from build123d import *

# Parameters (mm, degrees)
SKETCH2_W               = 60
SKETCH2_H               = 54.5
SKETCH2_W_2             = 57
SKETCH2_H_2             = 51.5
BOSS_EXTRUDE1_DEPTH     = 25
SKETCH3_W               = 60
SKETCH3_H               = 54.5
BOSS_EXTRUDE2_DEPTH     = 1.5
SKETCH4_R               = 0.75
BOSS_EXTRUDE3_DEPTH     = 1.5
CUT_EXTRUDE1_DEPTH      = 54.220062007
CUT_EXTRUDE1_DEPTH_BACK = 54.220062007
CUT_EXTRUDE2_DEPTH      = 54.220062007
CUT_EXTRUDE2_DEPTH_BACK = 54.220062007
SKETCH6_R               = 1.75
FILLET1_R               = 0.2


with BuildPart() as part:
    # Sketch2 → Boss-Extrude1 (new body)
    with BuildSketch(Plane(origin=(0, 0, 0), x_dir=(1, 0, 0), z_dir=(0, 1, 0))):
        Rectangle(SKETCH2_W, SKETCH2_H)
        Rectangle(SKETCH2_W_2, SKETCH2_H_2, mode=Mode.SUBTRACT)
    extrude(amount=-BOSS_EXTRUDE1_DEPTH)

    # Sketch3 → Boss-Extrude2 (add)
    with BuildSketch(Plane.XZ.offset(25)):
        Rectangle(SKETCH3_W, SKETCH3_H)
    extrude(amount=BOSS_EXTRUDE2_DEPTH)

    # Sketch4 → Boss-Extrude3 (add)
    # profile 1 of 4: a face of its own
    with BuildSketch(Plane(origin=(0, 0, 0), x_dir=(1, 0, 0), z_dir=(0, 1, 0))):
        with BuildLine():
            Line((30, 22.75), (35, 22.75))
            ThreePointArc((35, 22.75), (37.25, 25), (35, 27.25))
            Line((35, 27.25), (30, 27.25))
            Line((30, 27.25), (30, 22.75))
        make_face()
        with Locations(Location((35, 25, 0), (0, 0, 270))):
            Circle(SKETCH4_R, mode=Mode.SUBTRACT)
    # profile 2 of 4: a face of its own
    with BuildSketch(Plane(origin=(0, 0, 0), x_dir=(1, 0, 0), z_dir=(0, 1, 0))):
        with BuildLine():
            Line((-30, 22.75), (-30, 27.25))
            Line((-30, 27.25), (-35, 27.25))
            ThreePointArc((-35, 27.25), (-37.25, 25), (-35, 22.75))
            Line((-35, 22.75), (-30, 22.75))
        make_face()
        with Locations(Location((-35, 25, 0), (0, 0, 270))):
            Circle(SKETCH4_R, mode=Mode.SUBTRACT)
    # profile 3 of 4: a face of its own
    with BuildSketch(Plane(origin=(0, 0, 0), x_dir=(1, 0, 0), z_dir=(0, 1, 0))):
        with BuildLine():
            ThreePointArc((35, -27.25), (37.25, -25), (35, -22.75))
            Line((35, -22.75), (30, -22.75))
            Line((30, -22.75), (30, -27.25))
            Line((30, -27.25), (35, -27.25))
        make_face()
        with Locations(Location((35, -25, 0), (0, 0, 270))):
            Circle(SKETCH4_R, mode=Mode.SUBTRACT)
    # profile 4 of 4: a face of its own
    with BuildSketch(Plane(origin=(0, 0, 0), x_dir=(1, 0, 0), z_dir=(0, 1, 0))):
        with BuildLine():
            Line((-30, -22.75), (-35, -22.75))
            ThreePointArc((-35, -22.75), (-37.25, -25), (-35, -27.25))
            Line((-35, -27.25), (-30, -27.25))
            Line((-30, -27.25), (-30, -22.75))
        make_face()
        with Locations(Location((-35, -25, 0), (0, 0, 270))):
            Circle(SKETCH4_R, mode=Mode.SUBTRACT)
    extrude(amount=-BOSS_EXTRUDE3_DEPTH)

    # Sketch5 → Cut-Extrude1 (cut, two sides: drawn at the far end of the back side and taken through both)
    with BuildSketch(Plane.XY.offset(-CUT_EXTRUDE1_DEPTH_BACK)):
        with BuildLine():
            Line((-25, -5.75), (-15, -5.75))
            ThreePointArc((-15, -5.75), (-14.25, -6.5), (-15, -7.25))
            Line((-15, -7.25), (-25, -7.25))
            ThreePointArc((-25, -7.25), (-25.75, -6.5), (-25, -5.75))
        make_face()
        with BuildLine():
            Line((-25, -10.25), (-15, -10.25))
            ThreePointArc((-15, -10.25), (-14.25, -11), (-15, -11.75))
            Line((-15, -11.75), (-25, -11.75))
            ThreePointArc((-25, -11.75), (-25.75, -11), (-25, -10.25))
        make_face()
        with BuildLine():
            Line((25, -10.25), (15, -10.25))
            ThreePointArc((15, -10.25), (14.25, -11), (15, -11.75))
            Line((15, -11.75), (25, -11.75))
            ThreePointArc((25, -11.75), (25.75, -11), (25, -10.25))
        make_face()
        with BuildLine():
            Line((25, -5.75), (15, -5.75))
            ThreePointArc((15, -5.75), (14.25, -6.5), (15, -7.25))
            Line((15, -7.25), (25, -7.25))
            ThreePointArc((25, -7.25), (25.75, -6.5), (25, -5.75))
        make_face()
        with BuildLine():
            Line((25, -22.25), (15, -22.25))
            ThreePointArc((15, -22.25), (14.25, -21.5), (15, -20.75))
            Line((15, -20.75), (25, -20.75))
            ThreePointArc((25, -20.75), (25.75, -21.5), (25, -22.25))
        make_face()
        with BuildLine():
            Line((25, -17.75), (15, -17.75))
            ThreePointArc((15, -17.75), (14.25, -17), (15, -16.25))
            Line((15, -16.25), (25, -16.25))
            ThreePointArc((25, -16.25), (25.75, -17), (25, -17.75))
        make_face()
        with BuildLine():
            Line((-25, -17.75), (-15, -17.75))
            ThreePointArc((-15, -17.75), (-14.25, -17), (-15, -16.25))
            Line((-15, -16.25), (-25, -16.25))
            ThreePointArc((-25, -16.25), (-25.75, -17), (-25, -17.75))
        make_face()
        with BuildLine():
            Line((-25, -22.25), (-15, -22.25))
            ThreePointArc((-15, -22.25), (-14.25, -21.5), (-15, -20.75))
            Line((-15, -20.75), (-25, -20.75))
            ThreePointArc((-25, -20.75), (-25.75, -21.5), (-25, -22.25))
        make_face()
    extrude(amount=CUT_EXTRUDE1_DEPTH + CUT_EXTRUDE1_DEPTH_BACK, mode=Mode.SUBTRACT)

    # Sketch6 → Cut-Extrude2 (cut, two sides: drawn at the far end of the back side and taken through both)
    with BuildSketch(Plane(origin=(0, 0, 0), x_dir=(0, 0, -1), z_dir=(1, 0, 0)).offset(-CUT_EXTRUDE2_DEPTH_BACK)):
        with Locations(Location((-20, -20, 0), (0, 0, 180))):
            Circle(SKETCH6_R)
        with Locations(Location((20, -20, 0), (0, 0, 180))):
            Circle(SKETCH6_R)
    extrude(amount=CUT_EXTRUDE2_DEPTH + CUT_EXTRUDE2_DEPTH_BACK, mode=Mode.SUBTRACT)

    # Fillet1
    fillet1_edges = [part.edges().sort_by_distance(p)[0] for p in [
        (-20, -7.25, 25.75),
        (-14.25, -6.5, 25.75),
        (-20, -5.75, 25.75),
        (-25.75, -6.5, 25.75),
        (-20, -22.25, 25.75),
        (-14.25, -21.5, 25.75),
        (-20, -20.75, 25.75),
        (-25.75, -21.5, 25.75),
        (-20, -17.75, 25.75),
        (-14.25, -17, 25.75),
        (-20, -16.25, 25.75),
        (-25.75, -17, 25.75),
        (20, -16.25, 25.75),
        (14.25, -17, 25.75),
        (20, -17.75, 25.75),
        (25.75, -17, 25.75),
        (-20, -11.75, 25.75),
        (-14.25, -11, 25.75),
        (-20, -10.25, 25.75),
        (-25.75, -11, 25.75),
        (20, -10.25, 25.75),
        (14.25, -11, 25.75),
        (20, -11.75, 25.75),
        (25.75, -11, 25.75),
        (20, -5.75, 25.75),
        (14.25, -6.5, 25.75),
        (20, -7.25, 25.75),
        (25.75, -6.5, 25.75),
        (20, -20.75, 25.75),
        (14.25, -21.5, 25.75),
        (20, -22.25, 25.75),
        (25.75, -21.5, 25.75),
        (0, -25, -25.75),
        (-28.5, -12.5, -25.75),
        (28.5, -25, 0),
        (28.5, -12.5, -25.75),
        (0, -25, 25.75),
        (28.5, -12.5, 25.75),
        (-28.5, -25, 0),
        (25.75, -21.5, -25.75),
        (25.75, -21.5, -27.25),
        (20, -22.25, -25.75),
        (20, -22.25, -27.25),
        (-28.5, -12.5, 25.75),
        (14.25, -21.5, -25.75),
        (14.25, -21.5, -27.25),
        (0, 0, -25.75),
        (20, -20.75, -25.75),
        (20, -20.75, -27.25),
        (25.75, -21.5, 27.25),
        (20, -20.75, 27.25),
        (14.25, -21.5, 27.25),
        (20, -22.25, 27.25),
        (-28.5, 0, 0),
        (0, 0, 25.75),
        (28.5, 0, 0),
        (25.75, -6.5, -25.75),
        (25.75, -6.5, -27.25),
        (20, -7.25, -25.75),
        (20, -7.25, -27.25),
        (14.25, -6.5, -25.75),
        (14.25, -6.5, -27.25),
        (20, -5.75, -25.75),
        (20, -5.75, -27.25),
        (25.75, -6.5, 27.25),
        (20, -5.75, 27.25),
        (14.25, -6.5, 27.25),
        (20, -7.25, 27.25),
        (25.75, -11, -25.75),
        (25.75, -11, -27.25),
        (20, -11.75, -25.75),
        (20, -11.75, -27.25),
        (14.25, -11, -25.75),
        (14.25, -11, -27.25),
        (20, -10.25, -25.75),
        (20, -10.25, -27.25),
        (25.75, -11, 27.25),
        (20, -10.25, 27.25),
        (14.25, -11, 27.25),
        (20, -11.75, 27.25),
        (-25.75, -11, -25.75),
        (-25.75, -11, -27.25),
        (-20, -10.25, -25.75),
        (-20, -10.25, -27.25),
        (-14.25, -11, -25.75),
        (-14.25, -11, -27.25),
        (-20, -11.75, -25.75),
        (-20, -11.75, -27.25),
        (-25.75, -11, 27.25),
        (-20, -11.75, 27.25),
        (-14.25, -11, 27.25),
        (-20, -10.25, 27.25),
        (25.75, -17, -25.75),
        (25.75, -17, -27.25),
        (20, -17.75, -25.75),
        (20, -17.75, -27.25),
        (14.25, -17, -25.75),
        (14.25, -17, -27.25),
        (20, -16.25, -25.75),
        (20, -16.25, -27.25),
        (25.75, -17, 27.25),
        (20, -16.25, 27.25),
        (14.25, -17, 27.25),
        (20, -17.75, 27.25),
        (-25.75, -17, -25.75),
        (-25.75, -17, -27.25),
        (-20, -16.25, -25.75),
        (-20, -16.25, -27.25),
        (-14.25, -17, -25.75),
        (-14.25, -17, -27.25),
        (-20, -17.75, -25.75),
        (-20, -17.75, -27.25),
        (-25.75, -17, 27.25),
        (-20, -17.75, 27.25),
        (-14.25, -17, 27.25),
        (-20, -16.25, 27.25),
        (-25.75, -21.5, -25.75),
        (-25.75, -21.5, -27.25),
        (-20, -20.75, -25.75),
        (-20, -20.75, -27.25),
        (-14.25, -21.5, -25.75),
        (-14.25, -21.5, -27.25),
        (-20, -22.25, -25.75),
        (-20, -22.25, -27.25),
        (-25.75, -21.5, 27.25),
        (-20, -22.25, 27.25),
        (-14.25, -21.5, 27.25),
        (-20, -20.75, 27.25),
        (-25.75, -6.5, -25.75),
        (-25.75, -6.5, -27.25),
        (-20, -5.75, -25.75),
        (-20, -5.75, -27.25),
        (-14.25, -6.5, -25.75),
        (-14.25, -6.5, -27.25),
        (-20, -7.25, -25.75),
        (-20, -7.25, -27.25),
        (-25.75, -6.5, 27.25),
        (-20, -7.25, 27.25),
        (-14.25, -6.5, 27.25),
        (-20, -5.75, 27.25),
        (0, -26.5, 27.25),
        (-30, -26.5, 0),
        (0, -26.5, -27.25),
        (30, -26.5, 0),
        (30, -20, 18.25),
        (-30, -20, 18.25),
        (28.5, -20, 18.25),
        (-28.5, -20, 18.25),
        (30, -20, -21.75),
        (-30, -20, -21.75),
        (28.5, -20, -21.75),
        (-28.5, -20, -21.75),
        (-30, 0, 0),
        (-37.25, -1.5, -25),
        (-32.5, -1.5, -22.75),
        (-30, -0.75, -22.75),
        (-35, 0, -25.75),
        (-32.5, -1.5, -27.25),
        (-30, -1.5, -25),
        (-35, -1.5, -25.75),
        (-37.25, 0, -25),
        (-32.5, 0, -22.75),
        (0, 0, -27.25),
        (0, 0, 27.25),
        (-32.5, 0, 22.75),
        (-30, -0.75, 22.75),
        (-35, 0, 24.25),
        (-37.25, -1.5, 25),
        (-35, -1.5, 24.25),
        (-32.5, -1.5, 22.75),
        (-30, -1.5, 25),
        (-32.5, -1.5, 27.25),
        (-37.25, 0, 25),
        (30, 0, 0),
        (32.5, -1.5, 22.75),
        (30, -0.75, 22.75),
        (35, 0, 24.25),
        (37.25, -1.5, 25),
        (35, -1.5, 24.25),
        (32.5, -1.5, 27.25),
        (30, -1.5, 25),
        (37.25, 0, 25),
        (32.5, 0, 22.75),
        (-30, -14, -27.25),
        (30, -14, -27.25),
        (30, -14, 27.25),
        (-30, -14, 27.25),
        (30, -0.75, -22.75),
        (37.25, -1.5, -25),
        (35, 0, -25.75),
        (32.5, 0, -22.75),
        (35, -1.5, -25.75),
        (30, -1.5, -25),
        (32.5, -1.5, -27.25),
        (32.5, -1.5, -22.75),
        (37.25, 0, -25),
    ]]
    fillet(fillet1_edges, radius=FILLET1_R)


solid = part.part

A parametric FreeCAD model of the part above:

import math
import FreeCAD as App
import Part
import Sketcher
from FreeCAD import Vector
Q = App.Units.Quantity


def add_polygon(sketch, points):
    """Adds a closed chain of lines whose ends are joined by coincident constraints."""
    first, n = sketch.GeometryCount, len(points)
    for a, b in zip(points, points[1:] + points[:1]):
        sketch.addGeometry(Part.LineSegment(App.Vector(*a, 0), App.Vector(*b, 0)), False)
    for i in range(n):
        sketch.addConstraint(Sketcher.Constraint("Coincident", first + i, 2, first + (i + 1) % n, 1))

doc = App.newDocument("Part")
params = doc.addObject("Spreadsheet::Sheet", "Params")
for row, (alias, value) in enumerate([
    ("sketch1_width", "60 mm"),
    ("sketch1_width2", "57 mm"),
    ("sketch1_height", "54.5 mm"),
    ("sketch1_height2", "51.5 mm"),
    ("pad1_length", "25 mm"),
    ("sketch2_width", "60 mm"),
    ("sketch2_height", "54.5 mm"),
    ("pad2_length", "1.5 mm"),
    ("sketch3_diameter", "1.5 mm"),
    ("sketch3_width", "5 mm"),
    ("sketch3_radius", "2.25 mm"),
    ("pad3_length", "1.5 mm"),
    ("sketch4_width", "10 mm"),
    ("sketch4_radius", "0.75 mm"),
    ("sketch5_diameter", "3.5 mm"),
    ("fillet_radius", "0.2 mm"),
], start=1):
    params.set(f"A{row}", alias)
    params.set(f"B{row}", "=" + value)
    params.setAlias(f"B{row}", alias)

body = doc.addObject("PartDesign::Body", "Body")

sketch1 = body.newObject("Sketcher::SketchObject", "Sketch")
sketch1.AttachmentSupport = (doc.getObject("XZ_Plane"), [""])
sketch1.MapMode = "FlatFace"
add_polygon(sketch1, [(-30, -27.25), (-30, 27.25), (30, 27.25), (30, -27.25)])
add_polygon(sketch1, [(28.5, 25.75), (-28.5, 25.75), (-28.5, -25.75), (28.5, -25.75)])
sketch1.addConstraint([
    Sketcher.Constraint("Vertical", 0),
    Sketcher.Constraint("Horizontal", 1),
    Sketcher.Constraint("Vertical", 2),
    Sketcher.Constraint("Horizontal", 3),
    Sketcher.Constraint("Horizontal", 4),
    Sketcher.Constraint("Vertical", 5),
    Sketcher.Constraint("Horizontal", 6),
    Sketcher.Constraint("Vertical", 7),
    Sketcher.Constraint("Symmetric", 0, 2, 2, 2, -1, 1),
    Sketcher.Constraint("Symmetric", 4, 2, 6, 2, -1, 1),
    Sketcher.Constraint("DistanceX", 1, 1, 1, 2, Q("60 mm")),
    Sketcher.Constraint("DistanceX", 4, 2, 4, 1, Q("57 mm")),
    Sketcher.Constraint("DistanceY", 0, 1, 0, 2, Q("54.5 mm")),
    Sketcher.Constraint("DistanceY", 5, 2, 5, 1, Q("51.5 mm")),
])
sketch1.setExpression("Constraints[18]", "Params.sketch1_width")
sketch1.setExpression("Constraints[19]", "Params.sketch1_width2")
sketch1.setExpression("Constraints[20]", "Params.sketch1_height")
sketch1.setExpression("Constraints[21]", "Params.sketch1_height2")
pad1 = body.newObject("PartDesign::Pad", "Pad")
pad1.Profile = sketch1
pad1.setExpression("Length", "Params.pad1_length")

sketch2 = body.newObject("Sketcher::SketchObject", "Sketch001")
sketch2.AttachmentSupport = (doc.getObject("XZ_Plane"), [""])
sketch2.MapMode = "FlatFace"
sketch2.AttachmentOffset = App.Placement(Vector(0, 0, 25), App.Rotation())
add_polygon(sketch2, [(-30, 27.25), (-30, -27.25), (30, -27.25), (30, 27.25)])
sketch2.addConstraint([
    Sketcher.Constraint("Vertical", 0),
    Sketcher.Constraint("Horizontal", 1),
    Sketcher.Constraint("Vertical", 2),
    Sketcher.Constraint("Horizontal", 3),
    Sketcher.Constraint("Symmetric", 0, 2, 2, 2, -1, 1),
    Sketcher.Constraint("DistanceX", 1, 1, 1, 2, Q("60 mm")),
    Sketcher.Constraint("DistanceY", 0, 2, 0, 1, Q("54.5 mm")),
])
sketch2.setExpression("Constraints[9]", "Params.sketch2_width")
sketch2.setExpression("Constraints[10]", "Params.sketch2_height")
pad2 = body.newObject("PartDesign::Pad", "Pad001")
pad2.Profile = sketch2
pad2.setExpression("Length", "Params.pad2_length")

sketch3 = body.newObject("Sketcher::SketchObject", "Sketch002")
sketch3.AttachmentSupport = (doc.getObject("XZ_Plane"), [""])
sketch3.MapMode = "FlatFace"
sketch3.addGeometry([
    Part.LineSegment(Vector(30, -22.75, 0), Vector(35, -22.75, 0)),
    Part.ArcOfCircle(Part.Circle(Vector(35, -25, 0), Vector(0, 0, 1), 2.25), math.radians(-90), math.radians(90)),
    Part.LineSegment(Vector(35, -27.25, 0), Vector(30, -27.25, 0)),
    Part.LineSegment(Vector(30, -27.25, 0), Vector(30, -22.75, 0)),
    Part.Circle(Vector(35, -25, 0), Vector(0, 0, 1), 0.75),
    Part.LineSegment(Vector(-30, -22.75, 0), Vector(-30, -27.25, 0)),
    Part.LineSegment(Vector(-30, -27.25, 0), Vector(-35, -27.25, 0)),
    Part.ArcOfCircle(Part.Circle(Vector(-35, -25, 0), Vector(0, 0, 1), 2.25), math.radians(90), math.radians(270)),
    Part.LineSegment(Vector(-35, -22.75, 0), Vector(-30, -22.75, 0)),
    Part.Circle(Vector(-35, -25, 0), Vector(0, 0, 1), 0.75),
    Part.ArcOfCircle(Part.Circle(Vector(35, 25, 0), Vector(0, 0, 1), 2.25), math.radians(-90), math.radians(90)),
    Part.LineSegment(Vector(35, 22.75, 0), Vector(30, 22.75, 0)),
    Part.LineSegment(Vector(30, 22.75, 0), Vector(30, 27.25, 0)),
    Part.LineSegment(Vector(30, 27.25, 0), Vector(35, 27.25, 0)),
    Part.Circle(Vector(35, 25, 0), Vector(0, 0, 1), 0.75),
    Part.LineSegment(Vector(-30, 22.75, 0), Vector(-35, 22.75, 0)),
    Part.ArcOfCircle(Part.Circle(Vector(-35, 25, 0), Vector(0, 0, 1), 2.25), math.radians(90), math.radians(270)),
    Part.LineSegment(Vector(-35, 27.25, 0), Vector(-30, 27.25, 0)),
    Part.LineSegment(Vector(-30, 27.25, 0), Vector(-30, 22.75, 0)),
    Part.Circle(Vector(-35, 25, 0), Vector(0, 0, 1), 0.75),
], False)
sketch3.addConstraint([
    Sketcher.Constraint("Tangent", 0, 2, 1, 2),
    Sketcher.Constraint("Tangent", 1, 1, 2, 1),
    Sketcher.Constraint("Coincident", 2, 2, 3, 1),
    Sketcher.Constraint("Coincident", 3, 2, 0, 1),
    Sketcher.Constraint("Coincident", 5, 2, 6, 1),
    Sketcher.Constraint("Tangent", 6, 2, 7, 2),
    Sketcher.Constraint("Tangent", 7, 1, 8, 1),
    Sketcher.Constraint("Coincident", 8, 2, 5, 1),
    Sketcher.Constraint("Tangent", 10, 1, 11, 1),
    Sketcher.Constraint("Coincident", 11, 2, 12, 1),
    Sketcher.Constraint("Coincident", 12, 2, 13, 1),
    Sketcher.Constraint("Tangent", 13, 2, 10, 2),
    Sketcher.Constraint("Tangent", 15, 2, 16, 2),
    Sketcher.Constraint("Tangent", 16, 1, 17, 1),
    Sketcher.Constraint("Coincident", 17, 2, 18, 1),
    Sketcher.Constraint("Coincident", 18, 2, 15, 1),
    Sketcher.Constraint("Horizontal", 0),
    Sketcher.Constraint("Horizontal", 2),
    Sketcher.Constraint("Vertical", 3),
    Sketcher.Constraint("Vertical", 5),
    Sketcher.Constraint("Horizontal", 6),
    Sketcher.Constraint("Horizontal", 8),
    Sketcher.Constraint("Horizontal", 11),
    Sketcher.Constraint("Vertical", 12),
    Sketcher.Constraint("Horizontal", 13),
    Sketcher.Constraint("Horizontal", 15),
    Sketcher.Constraint("Horizontal", 17),
    Sketcher.Constraint("Vertical", 18),
    Sketcher.Constraint("Coincident", 4, 3, 1, 3),
    Sketcher.Constraint("Coincident", 9, 3, 7, 3),
    Sketcher.Constraint("Coincident", 14, 3, 10, 3),
    Sketcher.Constraint("Coincident", 19, 3, 16, 3),
    Sketcher.Constraint("Equal", 1, 7),
    Sketcher.Constraint("Equal", 4, 9),
    Sketcher.Constraint("Equal", 7, 10),
    Sketcher.Constraint("Equal", 9, 14),
    Sketcher.Constraint("Equal", 10, 16),
    Sketcher.Constraint("Equal", 14, 19),
    Sketcher.Constraint("Symmetric", 7, 3, 10, 3, -1, 1),
    Sketcher.Constraint("Symmetric", 1, 3, 16, 3, -1, 1),
    Sketcher.Constraint("Symmetric", 1, 3, 7, 3, -2),
    Sketcher.Constraint("Vertical", 3, 2, 11, 2),
    Sketcher.Constraint("Vertical", 8, 2, 17, 2),
    Sketcher.Constraint("Equal", 2, 6),
    Sketcher.Constraint("Diameter", 4, Q("1.5 mm")),
    Sketcher.Constraint("DistanceX", 0, 1, 0, 2, Q("5 mm")),
    Sketcher.Constraint("Radius", 1, Q("2.25 mm")),
    Sketcher.Constraint("DistanceX", -1, 1, 1, 3, Q("35 mm")),
    Sketcher.Constraint("DistanceY", 1, 3, -1, 1, Q("25 mm")),
])
sketch3.setExpression("Constraints[44]", "Params.sketch3_diameter")
sketch3.setExpression("Constraints[45]", "Params.sketch3_width")
sketch3.setExpression("Constraints[46]", "Params.sketch3_radius")
pad3 = body.newObject("PartDesign::Pad", "Pad002")
pad3.Profile = sketch3
pad3.setExpression("Length", "Params.pad3_length")

sketch4 = body.newObject("Sketcher::SketchObject", "Sketch003")
sketch4.AttachmentSupport = (doc.getObject("XY_Plane"), [""])
sketch4.MapMode = "FlatFace"
sketch4.addGeometry([
    Part.LineSegment(Vector(-15, -5.75, 0), Vector(-25, -5.75, 0)),
    Part.ArcOfCircle(Part.Circle(Vector(-25, -6.5, 0), Vector(0, 0, 1), 0.75), math.radians(90), math.radians(270)),
    Part.LineSegment(Vector(-25, -7.25, 0), Vector(-15, -7.25, 0)),
    Part.ArcOfCircle(Part.Circle(Vector(-15, -6.5, 0), Vector(0, 0, 1), 0.75), math.radians(-90), math.radians(90)),
    Part.LineSegment(Vector(-15, -10.25, 0), Vector(-25, -10.25, 0)),
    Part.ArcOfCircle(Part.Circle(Vector(-25, -11, 0), Vector(0, 0, 1), 0.75), math.radians(90), math.radians(270)),
    Part.LineSegment(Vector(-25, -11.75, 0), Vector(-15, -11.75, 0)),
    Part.ArcOfCircle(Part.Circle(Vector(-15, -11, 0), Vector(0, 0, 1), 0.75), math.radians(-90), math.radians(90)),
    Part.LineSegment(Vector(25, -10.25, 0), Vector(15, -10.25, 0)),
    Part.ArcOfCircle(Part.Circle(Vector(15, -11, 0), Vector(0, 0, 1), 0.75), math.radians(90), math.radians(270)),
    Part.LineSegment(Vector(15, -11.75, 0), Vector(25, -11.75, 0)),
    Part.ArcOfCircle(Part.Circle(Vector(25, -11, 0), Vector(0, 0, 1), 0.75), math.radians(-90), math.radians(90)),
    Part.LineSegment(Vector(25, -5.75, 0), Vector(15, -5.75, 0)),
    Part.ArcOfCircle(Part.Circle(Vector(15, -6.5, 0), Vector(0, 0, 1), 0.75), math.radians(90), math.radians(270)),
    Part.LineSegment(Vector(15, -7.25, 0), Vector(25, -7.25, 0)),
    Part.ArcOfCircle(Part.Circle(Vector(25, -6.5, 0), Vector(0, 0, 1), 0.75), math.radians(-90), math.radians(90)),
    Part.LineSegment(Vector(15, -22.25, 0), Vector(25, -22.25, 0)),
    Part.ArcOfCircle(Part.Circle(Vector(25, -21.5, 0), Vector(0, 0, 1), 0.75), math.radians(-90), math.radians(90)),
    Part.LineSegment(Vector(25, -20.75, 0), Vector(15, -20.75, 0)),
    Part.ArcOfCircle(Part.Circle(Vector(15, -21.5, 0), Vector(0, 0, 1), 0.75), math.radians(90), math.radians(270)),
    Part.LineSegment(Vector(15, -17.75, 0), Vector(25, -17.75, 0)),
    Part.ArcOfCircle(Part.Circle(Vector(25, -17, 0), Vector(0, 0, 1), 0.75), math.radians(-90), math.radians(90)),
    Part.LineSegment(Vector(25, -16.25, 0), Vector(15, -16.25, 0)),
    Part.ArcOfCircle(Part.Circle(Vector(15, -17, 0), Vector(0, 0, 1), 0.75), math.radians(90), math.radians(270)),
    Part.LineSegment(Vector(-25, -17.75, 0), Vector(-15, -17.75, 0)),
    Part.ArcOfCircle(Part.Circle(Vector(-15, -17, 0), Vector(0, 0, 1), 0.75), math.radians(-90), math.radians(90)),
    Part.LineSegment(Vector(-15, -16.25, 0), Vector(-25, -16.25, 0)),
    Part.ArcOfCircle(Part.Circle(Vector(-25, -17, 0), Vector(0, 0, 1), 0.75), math.radians(90), math.radians(270)),
    Part.LineSegment(Vector(-25, -22.25, 0), Vector(-15, -22.25, 0)),
    Part.ArcOfCircle(Part.Circle(Vector(-15, -21.5, 0), Vector(0, 0, 1), 0.75), math.radians(-90), math.radians(90)),
    Part.LineSegment(Vector(-15, -20.75, 0), Vector(-25, -20.75, 0)),
    Part.ArcOfCircle(Part.Circle(Vector(-25, -21.5, 0), Vector(0, 0, 1), 0.75), math.radians(90), math.radians(270)),
], False)
sketch4.addConstraint([
    Sketcher.Constraint("Tangent", 0, 2, 1, 1),
    Sketcher.Constraint("Tangent", 1, 2, 2, 1),
    Sketcher.Constraint("Tangent", 2, 2, 3, 1),
    Sketcher.Constraint("Tangent", 3, 2, 0, 1),
    Sketcher.Constraint("Tangent", 4, 2, 5, 1),
    Sketcher.Constraint("Tangent", 5, 2, 6, 1),
    Sketcher.Constraint("Tangent", 6, 2, 7, 1),
    Sketcher.Constraint("Tangent", 7, 2, 4, 1),
    Sketcher.Constraint("Tangent", 8, 2, 9, 1),
    Sketcher.Constraint("Tangent", 9, 2, 10, 1),
    Sketcher.Constraint("Tangent", 10, 2, 11, 1),
    Sketcher.Constraint("Tangent", 11, 2, 8, 1),
    Sketcher.Constraint("Tangent", 12, 2, 13, 1),
    Sketcher.Constraint("Tangent", 13, 2, 14, 1),
    Sketcher.Constraint("Tangent", 14, 2, 15, 1),
    Sketcher.Constraint("Tangent", 15, 2, 12, 1),
    Sketcher.Constraint("Tangent", 16, 2, 17, 1),
    Sketcher.Constraint("Tangent", 17, 2, 18, 1),
    Sketcher.Constraint("Tangent", 18, 2, 19, 1),
    Sketcher.Constraint("Tangent", 19, 2, 16, 1),
    Sketcher.Constraint("Tangent", 20, 2, 21, 1),
    Sketcher.Constraint("Tangent", 21, 2, 22, 1),
    Sketcher.Constraint("Tangent", 22, 2, 23, 1),
    Sketcher.Constraint("Tangent", 23, 2, 20, 1),
    Sketcher.Constraint("Tangent", 24, 2, 25, 1),
    Sketcher.Constraint("Tangent", 25, 2, 26, 1),
    Sketcher.Constraint("Tangent", 26, 2, 27, 1),
    Sketcher.Constraint("Tangent", 27, 2, 24, 1),
    Sketcher.Constraint("Tangent", 28, 2, 29, 1),
    Sketcher.Constraint("Tangent", 29, 2, 30, 1),
    Sketcher.Constraint("Tangent", 30, 2, 31, 1),
    Sketcher.Constraint("Tangent", 31, 2, 28, 1),
    Sketcher.Constraint("Horizontal", 0),
    Sketcher.Constraint("Horizontal", 2),
    Sketcher.Constraint("Horizontal", 4),
    Sketcher.Constraint("Horizontal", 6),
    Sketcher.Constraint("Horizontal", 8),
    Sketcher.Constraint("Horizontal", 10),
    Sketcher.Constraint("Horizontal", 12),
    Sketcher.Constraint("Horizontal", 14),
    Sketcher.Constraint("Horizontal", 16),
    Sketcher.Constraint("Horizontal", 18),
    Sketcher.Constraint("Horizontal", 20),
    Sketcher.Constraint("Horizontal", 22),
    Sketcher.Constraint("Horizontal", 24),
    Sketcher.Constraint("Horizontal", 26),
    Sketcher.Constraint("Horizontal", 28),
    Sketcher.Constraint("Horizontal", 30),
    Sketcher.Constraint("Equal", 3, 5),
    Sketcher.Constraint("Equal", 7, 9),
    Sketcher.Constraint("Equal", 11, 13),
    Sketcher.Constraint("Equal", 15, 17),
    Sketcher.Constraint("Equal", 19, 21),
    Sketcher.Constraint("Equal", 23, 25),
    Sketcher.Constraint("Equal", 27, 29),
    Sketcher.Constraint("Symmetric", 7, 3, 9, 3, -2),
    Sketcher.Constraint("Symmetric", 3, 3, 13, 3, -2),
    Sketcher.Constraint("Symmetric", 23, 3, 25, 3, -2),
    Sketcher.Constraint("Symmetric", 19, 3, 29, 3, -2),
    Sketcher.Constraint("Vertical", 1, 3, 5, 3),
    Sketcher.Constraint("Vertical", 3, 3, 7, 3),
    Sketcher.Constraint("Vertical", 11, 3, 15, 3),
    Sketcher.Constraint("Vertical", 15, 3, 17, 3),
    Sketcher.Constraint("Vertical", 13, 3, 19, 3),
    Sketcher.Constraint("Vertical", 17, 3, 21, 3),
    Sketcher.Constraint("Vertical", 19, 3, 23, 3),
    Sketcher.Constraint("Vertical", 5, 3, 27, 3),
    Sketcher.Constraint("Vertical", 27, 3, 31, 3),
    Sketcher.Constraint("Equal", 6, 8),
    Sketcher.Constraint("DistanceX", 0, 2, 0, 1, Q("10 mm")),
    Sketcher.Constraint("Radius", 1, Q("0.75 mm")),
    Sketcher.Constraint("DistanceX", 1, 3, -1, 1, Q("25 mm")),
    Sketcher.Constraint("DistanceY", 5, 3, -1, 1, Q("11 mm")),
    Sketcher.Constraint("DistanceY", 21, 3, -1, 1, Q("17 mm")),
    Sketcher.Constraint("DistanceY", 17, 3, 15, 3, Q("15 mm")),
    Sketcher.Constraint("DistanceY", 4, 2, 1, 2, Q("3 mm")),
])
sketch4.setExpression("Constraints[69]", "Params.sketch4_width")
sketch4.setExpression("Constraints[70]", "Params.sketch4_radius")
pocket1 = body.newObject("PartDesign::Pocket", "Pocket")
pocket1.Profile = sketch4
pocket1.Type = "ThroughAll"
pocket1.Midplane = True

sketch5 = body.newObject("Sketcher::SketchObject", "Sketch004")
sketch5.AttachmentSupport = (doc.getObject("YZ_Plane"), [""])
sketch5.MapMode = "FlatFace"
sketch5.addGeometry([
    Part.Circle(Vector(-20, 20, 0), Vector(0, 0, 1), 1.75),
    Part.Circle(Vector(-20, -20, 0), Vector(0, 0, 1), 1.75),
], False)
sketch5.addConstraint([
    Sketcher.Constraint("Equal", 0, 1),
    Sketcher.Constraint("Symmetric", 0, 3, 1, 3, -1),
    Sketcher.Constraint("Diameter", 0, Q("3.5 mm")),
    Sketcher.Constraint("DistanceX", 0, 3, -1, 1, Q("20 mm")),
    Sketcher.Constraint("DistanceY", -1, 1, 0, 3, Q("20 mm")),
])
sketch5.setExpression("Constraints[2]", "Params.sketch5_diameter")
pocket2 = body.newObject("PartDesign::Pocket", "Pocket001")
pocket2.Profile = sketch5
pocket2.Type = "ThroughAll"
pocket2.Midplane = True
doc.recompute()

fillet = body.newObject("PartDesign::Fillet", "Fillet")
fillet.Base = (pocket2, ["Edge1"])
fillet.UseAllEdges = True
fillet.setExpression("Radius", "Params.fillet_radius")

doc.recompute()
